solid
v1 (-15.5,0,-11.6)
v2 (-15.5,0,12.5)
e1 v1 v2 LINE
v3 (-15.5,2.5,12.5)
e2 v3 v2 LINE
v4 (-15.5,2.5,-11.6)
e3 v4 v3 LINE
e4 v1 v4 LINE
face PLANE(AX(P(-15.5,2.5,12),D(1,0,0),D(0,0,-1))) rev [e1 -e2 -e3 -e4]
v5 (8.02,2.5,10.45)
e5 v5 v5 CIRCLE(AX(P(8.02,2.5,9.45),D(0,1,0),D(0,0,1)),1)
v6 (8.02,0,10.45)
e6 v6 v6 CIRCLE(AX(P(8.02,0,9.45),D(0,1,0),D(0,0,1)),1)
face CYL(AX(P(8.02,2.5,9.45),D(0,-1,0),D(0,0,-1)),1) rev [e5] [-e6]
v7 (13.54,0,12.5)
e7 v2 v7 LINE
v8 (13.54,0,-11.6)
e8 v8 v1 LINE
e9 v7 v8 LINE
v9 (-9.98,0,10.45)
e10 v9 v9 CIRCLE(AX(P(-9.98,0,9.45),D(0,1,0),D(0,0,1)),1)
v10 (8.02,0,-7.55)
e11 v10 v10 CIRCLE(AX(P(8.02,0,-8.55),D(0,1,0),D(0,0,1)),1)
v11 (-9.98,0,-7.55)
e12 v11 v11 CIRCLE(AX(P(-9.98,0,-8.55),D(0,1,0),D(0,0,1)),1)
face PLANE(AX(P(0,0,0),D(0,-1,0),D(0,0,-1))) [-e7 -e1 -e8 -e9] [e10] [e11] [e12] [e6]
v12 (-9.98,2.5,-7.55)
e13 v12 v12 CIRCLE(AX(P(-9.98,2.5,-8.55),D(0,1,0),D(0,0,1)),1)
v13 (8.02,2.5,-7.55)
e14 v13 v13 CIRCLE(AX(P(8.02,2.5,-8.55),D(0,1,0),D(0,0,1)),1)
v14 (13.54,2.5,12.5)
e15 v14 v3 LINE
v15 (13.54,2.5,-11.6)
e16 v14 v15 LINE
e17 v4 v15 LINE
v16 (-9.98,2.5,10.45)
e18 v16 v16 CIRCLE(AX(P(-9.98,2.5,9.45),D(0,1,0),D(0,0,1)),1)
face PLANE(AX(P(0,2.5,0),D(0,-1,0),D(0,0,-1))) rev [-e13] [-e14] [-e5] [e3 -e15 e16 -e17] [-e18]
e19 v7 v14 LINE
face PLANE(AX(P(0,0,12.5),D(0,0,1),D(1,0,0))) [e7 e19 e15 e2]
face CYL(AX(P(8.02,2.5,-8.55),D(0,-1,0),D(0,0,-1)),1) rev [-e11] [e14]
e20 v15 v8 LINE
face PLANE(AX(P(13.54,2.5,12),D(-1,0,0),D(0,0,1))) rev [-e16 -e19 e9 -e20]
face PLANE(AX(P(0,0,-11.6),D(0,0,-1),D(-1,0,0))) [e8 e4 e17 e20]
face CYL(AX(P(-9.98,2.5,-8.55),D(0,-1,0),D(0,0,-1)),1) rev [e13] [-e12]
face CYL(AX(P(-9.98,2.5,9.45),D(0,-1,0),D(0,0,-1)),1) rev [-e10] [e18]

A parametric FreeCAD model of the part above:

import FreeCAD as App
import Part
import Sketcher

V = App.Vector
Q = App.Units.Quantity


def add_polygon(sketch, points):
    """Adds a closed chain of lines whose ends are joined by coincident constraints."""
    first, n = sketch.GeometryCount, len(points)
    for a, b in zip(points, points[1:] + points[:1]):
        sketch.addGeometry(Part.LineSegment(App.Vector(*a, 0), App.Vector(*b, 0)), False)
    for i in range(n):
        sketch.addConstraint(Sketcher.Constraint("Coincident", first + i, 2, first + (i + 1) % n, 1))

doc = App.newDocument("Part")
params = doc.addObject("Spreadsheet::Sheet", "Params")
for row, (alias, value) in enumerate([
    ("sketch1_diameter", "2 mm"),
    ("sketch1_height", "23.1 mm"),
    ("sketch1_width", "29.04 mm"),
    ("pad1_length", "2.5 mm"),
    ("sketch2_height", "2.5 mm"),
    ("sketch2_width", "29.04 mm"),
    ("pad2_length", "0.5 mm"),
    ("sketch3_height", "2.5 mm"),
    ("sketch3_width", "29.04 mm"),
    ("pad3_length", "0.5 mm"),
], start=1):
    params.set(f"A{row}", alias)
    params.set(f"B{row}", "=" + value)
    params.setAlias(f"B{row}", alias)

body = doc.addObject("PartDesign::Body", "Body")

# Sketch on XZ plane
sketch1 = body.newObject("Sketcher::SketchObject", "Sketch")
sketch1.AttachmentSupport = (doc.getObject("XZ_Plane"), [""])
sketch1.MapMode = "FlatFace"
add_polygon(sketch1, [(-15.5, -11.1), (-15.5, 12), (13.54, 12), (13.54, -11.1)])  # lines 0-3
sketch1.addGeometry(Part.Circle(V(-9.98, 9.45, 0), V(0, 0, 1), 1), False)  # 4
sketch1.addGeometry(Part.Circle(V(8.02, 9.45, 0), V(0, 0, 1), 1), False)  # 5
sketch1.addGeometry(Part.Circle(V(-9.98, -8.55, 0), V(0, 0, 1), 1), False)  # 6
sketch1.addGeometry(Part.Circle(V(8.02, -8.55, 0), V(0, 0, 1), 1), False)  # 7
sketch1.addConstraint([
    Sketcher.Constraint("Vertical", 0),
    Sketcher.Constraint("Horizontal", 1),
    Sketcher.Constraint("Vertical", 2),
    Sketcher.Constraint("Horizontal", 3),
    Sketcher.Constraint("Equal", 4, 5),
    Sketcher.Constraint("Equal", 5, 6),
    Sketcher.Constraint("Equal", 6, 7),
    Sketcher.Constraint("Horizontal", 4, 3, 5, 3),
    Sketcher.Constraint("Horizontal", 6, 3, 7, 3),
    Sketcher.Constraint("Vertical", 4, 3, 6, 3),
    Sketcher.Constraint("Vertical", 5, 3, 7, 3),
    Sketcher.Constraint("Diameter", 4, Q("2 mm")),
    Sketcher.Constraint("DistanceY", 0, 1, 0, 2, Q("23.1 mm")),
    Sketcher.Constraint("DistanceY", -1, 1, 0, 2, Q("12 mm")),
    Sketcher.Constraint("DistanceX", 4, 3, 5, 3, Q("18 mm")),
    Sketcher.Constraint("DistanceY", 6, 3, 4, 3, Q("18 mm")),
    Sketcher.Constraint("DistanceX", 1, 1, 1, 2, Q("29.04 mm")),
    Sketcher.Constraint("DistanceX", 0, 2, -1, 1, Q("15.5 mm")),
    Sketcher.Constraint("DistanceX", 4, 3, -1, 1, Q("9.98 mm")),
    Sketcher.Constraint("DistanceY", -1, 1, 4, 3, Q("9.45 mm")),
])
sketch1.setExpression("Constraints[15]", "Params.sketch1_diameter")
sketch1.setExpression("Constraints[16]", "Params.sketch1_height")
sketch1.setExpression("Constraints[20]", "Params.sketch1_width")
pad1 = body.newObject("PartDesign::Pad", "Pad")
pad1.Profile = sketch1
pad1.setExpression("Length", "Params.pad1_length")
pad1.Reversed = True

# Sketch on XY plane
sketch2 = body.newObject("Sketcher::SketchObject", "Sketch001")
sketch2.AttachmentSupport = (doc.getObject("XY_Plane"), [""])
sketch2.MapMode = "FlatFace"
sketch2.AttachmentOffset = App.Placement(V(0, 0, -11.1), App.Rotation())
add_polygon(sketch2, [(13.54, 2.5), (13.54, 0), (-15.5, 0), (-15.5, 2.5)])  # lines 0-3
sketch2.addConstraint([
    Sketcher.Constraint("Vertical", 0),
    Sketcher.Constraint("Horizontal", 1),
    Sketcher.Constraint("Vertical", 2),
    Sketcher.Constraint("Horizontal", 3),
    Sketcher.Constraint("PointOnObject", 0, 2, -1),
    Sketcher.Constraint("DistanceY", 0, 2, 0, 1, Q("2.5 mm")),
    Sketcher.Constraint("DistanceX", 1, 2, 1, 1, Q("29.04 mm")),
    Sketcher.Constraint("DistanceX", 1, 2, -1, 1, Q("15.5 mm")),
])
sketch2.setExpression("Constraints[9]", "Params.sketch2_height")
sketch2.setExpression("Constraints[10]", "Params.sketch2_width")
pad2 = body.newObject("PartDesign::Pad", "Pad001")
pad2.Profile = sketch2
pad2.setExpression("Length", "Params.pad2_length")
pad2.Reversed = True

# Sketch on XY plane
sketch3 = body.newObject("Sketcher::SketchObject", "Sketch002")
sketch3.AttachmentSupport = (doc.getObject("XY_Plane"), [""])
sketch3.MapMode = "FlatFace"
sketch3.AttachmentOffset = App.Placement(V(0, 0, 12), App.Rotation())
add_polygon(sketch3, [(-15.5, 2.5), (-15.5, 0), (13.54, 0), (13.54, 2.5)])  # lines 0-3
sketch3.addConstraint([
    Sketcher.Constraint("Vertical", 0),
    Sketcher.Constraint("Horizontal", 1),
    Sketcher.Constraint("Vertical", 2),
    Sketcher.Constraint("Horizontal", 3),
    Sketcher.Constraint("PointOnObject", 0, 2, -1),
    Sketcher.Constraint("DistanceY", 0, 2, 0, 1, Q("2.5 mm")),
    Sketcher.Constraint("DistanceX", 1, 1, 1, 2, Q("29.04 mm")),
    Sketcher.Constraint("DistanceX", 0, 2, -1, 1, Q("15.5 mm")),
])
sketch3.setExpression("Constraints[9]", "Params.sketch3_height")
sketch3.setExpression("Constraints[10]", "Params.sketch3_width")
pad3 = body.newObject("PartDesign::Pad", "Pad002")
pad3.Profile = sketch3
pad3.setExpression("Length", "Params.pad3_length")

doc.recompute()
